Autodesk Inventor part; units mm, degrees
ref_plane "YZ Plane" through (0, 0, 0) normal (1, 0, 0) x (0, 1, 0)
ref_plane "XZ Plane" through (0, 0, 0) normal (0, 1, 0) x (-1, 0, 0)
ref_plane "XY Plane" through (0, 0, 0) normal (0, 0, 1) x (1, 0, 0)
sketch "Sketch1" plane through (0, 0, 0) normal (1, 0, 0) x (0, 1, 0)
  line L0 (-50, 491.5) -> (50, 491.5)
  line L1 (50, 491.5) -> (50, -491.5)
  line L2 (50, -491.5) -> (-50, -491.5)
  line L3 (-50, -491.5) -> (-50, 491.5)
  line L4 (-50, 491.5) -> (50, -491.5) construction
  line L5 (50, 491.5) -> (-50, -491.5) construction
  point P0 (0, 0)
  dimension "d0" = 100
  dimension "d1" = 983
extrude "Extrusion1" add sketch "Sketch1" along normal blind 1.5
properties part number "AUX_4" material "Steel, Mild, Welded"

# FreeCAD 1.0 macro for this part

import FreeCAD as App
import Part
import Sketcher

V = App.Vector


def add_polygon(sketch, points):
    """Adds a closed chain of lines whose ends are joined by coincident constraints."""
    first, n = sketch.GeometryCount, len(points)
    for a, b in zip(points, points[1:] + points[:1]):
        sketch.addGeometry(Part.LineSegment(App.Vector(*a, 0), App.Vector(*b, 0)), False)
    for i in range(n):
        sketch.addConstraint(Sketcher.Constraint("Coincident", first + i, 2, first + (i + 1) % n, 1))

doc = App.newDocument("Part")
body = doc.addObject("PartDesign::Body", "Body")

sketch1 = body.newObject("Sketcher::SketchObject", "Sketch")
sketch1.AttachmentSupport = (doc.getObject("YZ_Plane"), [""])
sketch1.MapMode = "FlatFace"
add_polygon(sketch1, [(50, 491.5), (-50, 491.5), (-50, -491.5), (50, -491.5)])
sketch1.addConstraint([
    Sketcher.Constraint("Horizontal", 0),
    Sketcher.Constraint("Vertical", 1),
    Sketcher.Constraint("Horizontal", 2),
    Sketcher.Constraint("Vertical", 3),
    Sketcher.Constraint("Symmetric", 0, 2, 2, 2, -1, 1),
    Sketcher.Constraint("DistanceX", 0, 2, 0, 1, 100.0),
    Sketcher.Constraint("DistanceY", 1, 2, 1, 1, 983.0),
])
pad1 = body.newObject("PartDesign::Pad", "Pad")
pad1.Profile = sketch1
pad1.Length = 1.5

doc.recompute()
